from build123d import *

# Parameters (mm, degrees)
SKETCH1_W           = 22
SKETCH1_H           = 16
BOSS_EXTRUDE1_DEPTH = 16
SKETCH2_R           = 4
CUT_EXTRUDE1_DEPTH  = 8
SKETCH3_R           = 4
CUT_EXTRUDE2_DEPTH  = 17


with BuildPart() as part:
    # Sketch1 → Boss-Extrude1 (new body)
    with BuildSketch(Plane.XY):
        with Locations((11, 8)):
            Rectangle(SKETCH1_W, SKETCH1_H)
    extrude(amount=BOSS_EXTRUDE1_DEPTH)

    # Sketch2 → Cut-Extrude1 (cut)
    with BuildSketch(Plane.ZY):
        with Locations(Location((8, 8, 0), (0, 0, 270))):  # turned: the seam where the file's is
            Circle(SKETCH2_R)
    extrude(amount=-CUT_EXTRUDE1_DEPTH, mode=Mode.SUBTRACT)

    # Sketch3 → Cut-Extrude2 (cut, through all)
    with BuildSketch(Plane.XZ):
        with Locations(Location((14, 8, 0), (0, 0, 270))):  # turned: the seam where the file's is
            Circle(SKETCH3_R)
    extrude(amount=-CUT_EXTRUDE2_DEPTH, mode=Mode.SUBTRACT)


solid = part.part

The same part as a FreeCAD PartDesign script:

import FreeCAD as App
import Part
import Sketcher
from FreeCAD import Vector
Q = App.Units.Quantity

doc = App.newDocument("Part")
body = doc.addObject("PartDesign::Body", "Body")

# Sketch on XY plane
sketch1 = doc.addObject("Sketcher::SketchObject", "Sketch")
body.addObject(sketch1)
sketch1.AttachmentSupport = (doc.XY_Plane, [""])
sketch1.MapMode = "FlatFace"
sketch1.addGeometry(Part.LineSegment(Vector(0, 16, 0), Vector(0, 0, 0)), False)
sketch1.addGeometry(Part.LineSegment(Vector(0, 0, 0), Vector(22, 0, 0)), False)
sketch1.addGeometry(Part.LineSegment(Vector(22, 0, 0), Vector(22, 16, 0)), False)
sketch1.addGeometry(Part.LineSegment(Vector(22, 16, 0), Vector(0, 16, 0)), False)
sketch1.addConstraint(Sketcher.Constraint("Coincident", 0, 2, 1, 1))
sketch1.addConstraint(Sketcher.Constraint("Coincident", 1, 2, 2, 1))
sketch1.addConstraint(Sketcher.Constraint("Coincident", 2, 2, 3, 1))
sketch1.addConstraint(Sketcher.Constraint("Coincident", 3, 2, 0, 1))
sketch1.addConstraint(Sketcher.Constraint("Vertical", 0))
sketch1.addConstraint(Sketcher.Constraint("Horizontal", 1))
sketch1.addConstraint(Sketcher.Constraint("Vertical", 2))
sketch1.addConstraint(Sketcher.Constraint("Horizontal", 3))
sketch1.addConstraint(Sketcher.Constraint("Coincident", 0, 2, -1, 1))
sketch1.addConstraint(Sketcher.Constraint("DistanceX", 1, 1, 1, 2, Q("22 mm")))
sketch1.addConstraint(Sketcher.Constraint("DistanceY", 0, 2, 0, 1, Q("16 mm")))
pad1 = doc.addObject("PartDesign::Pad", "Pad")
body.addObject(pad1)
pad1.Profile = sketch1
pad1.Length = 16

# Sketch on YZ plane
sketch2 = doc.addObject("Sketcher::SketchObject", "Sketch001")
body.addObject(sketch2)
sketch2.AttachmentSupport = (doc.YZ_Plane, [""])
sketch2.MapMode = "FlatFace"
sketch2.addGeometry(Part.Circle(Vector(8, 8, 0), Vector(0, 0, 1), 4), False)
sketch2.addConstraint(Sketcher.Constraint("Diameter", 0, Q("8 mm")))
sketch2.addConstraint(Sketcher.Constraint("DistanceX", -1, 1, 0, 3, Q("8 mm")))
sketch2.addConstraint(Sketcher.Constraint("DistanceY", -1, 1, 0, 3, Q("8 mm")))
pocket1 = doc.addObject("PartDesign::Pocket", "Pocket")
body.addObject(pocket1)
pocket1.Profile = sketch2
pocket1.Length = 8
pocket1.Reversed = True

# Sketch on XZ plane
sketch3 = doc.addObject("Sketcher::SketchObject", "Sketch002")
body.addObject(sketch3)
sketch3.AttachmentSupport = (doc.XZ_Plane, [""])
sketch3.MapMode = "FlatFace"
sketch3.addGeometry(Part.Circle(Vector(14, 8, 0), Vector(0, 0, 1), 4), False)
sketch3.addConstraint(Sketcher.Constraint("Diameter", 0, Q("8 mm")))
sketch3.addConstraint(Sketcher.Constraint("DistanceX", -1, 1, 0, 3, Q("14 mm")))
sketch3.addConstraint(Sketcher.Constraint("DistanceY", -1, 1, 0, 3, Q("8 mm")))
pocket2 = doc.addObject("PartDesign::Pocket", "Pocket001")
body.addObject(pocket2)
pocket2.Profile = sketch3
pocket2.Type = "ThroughAll"

doc.recompute()
